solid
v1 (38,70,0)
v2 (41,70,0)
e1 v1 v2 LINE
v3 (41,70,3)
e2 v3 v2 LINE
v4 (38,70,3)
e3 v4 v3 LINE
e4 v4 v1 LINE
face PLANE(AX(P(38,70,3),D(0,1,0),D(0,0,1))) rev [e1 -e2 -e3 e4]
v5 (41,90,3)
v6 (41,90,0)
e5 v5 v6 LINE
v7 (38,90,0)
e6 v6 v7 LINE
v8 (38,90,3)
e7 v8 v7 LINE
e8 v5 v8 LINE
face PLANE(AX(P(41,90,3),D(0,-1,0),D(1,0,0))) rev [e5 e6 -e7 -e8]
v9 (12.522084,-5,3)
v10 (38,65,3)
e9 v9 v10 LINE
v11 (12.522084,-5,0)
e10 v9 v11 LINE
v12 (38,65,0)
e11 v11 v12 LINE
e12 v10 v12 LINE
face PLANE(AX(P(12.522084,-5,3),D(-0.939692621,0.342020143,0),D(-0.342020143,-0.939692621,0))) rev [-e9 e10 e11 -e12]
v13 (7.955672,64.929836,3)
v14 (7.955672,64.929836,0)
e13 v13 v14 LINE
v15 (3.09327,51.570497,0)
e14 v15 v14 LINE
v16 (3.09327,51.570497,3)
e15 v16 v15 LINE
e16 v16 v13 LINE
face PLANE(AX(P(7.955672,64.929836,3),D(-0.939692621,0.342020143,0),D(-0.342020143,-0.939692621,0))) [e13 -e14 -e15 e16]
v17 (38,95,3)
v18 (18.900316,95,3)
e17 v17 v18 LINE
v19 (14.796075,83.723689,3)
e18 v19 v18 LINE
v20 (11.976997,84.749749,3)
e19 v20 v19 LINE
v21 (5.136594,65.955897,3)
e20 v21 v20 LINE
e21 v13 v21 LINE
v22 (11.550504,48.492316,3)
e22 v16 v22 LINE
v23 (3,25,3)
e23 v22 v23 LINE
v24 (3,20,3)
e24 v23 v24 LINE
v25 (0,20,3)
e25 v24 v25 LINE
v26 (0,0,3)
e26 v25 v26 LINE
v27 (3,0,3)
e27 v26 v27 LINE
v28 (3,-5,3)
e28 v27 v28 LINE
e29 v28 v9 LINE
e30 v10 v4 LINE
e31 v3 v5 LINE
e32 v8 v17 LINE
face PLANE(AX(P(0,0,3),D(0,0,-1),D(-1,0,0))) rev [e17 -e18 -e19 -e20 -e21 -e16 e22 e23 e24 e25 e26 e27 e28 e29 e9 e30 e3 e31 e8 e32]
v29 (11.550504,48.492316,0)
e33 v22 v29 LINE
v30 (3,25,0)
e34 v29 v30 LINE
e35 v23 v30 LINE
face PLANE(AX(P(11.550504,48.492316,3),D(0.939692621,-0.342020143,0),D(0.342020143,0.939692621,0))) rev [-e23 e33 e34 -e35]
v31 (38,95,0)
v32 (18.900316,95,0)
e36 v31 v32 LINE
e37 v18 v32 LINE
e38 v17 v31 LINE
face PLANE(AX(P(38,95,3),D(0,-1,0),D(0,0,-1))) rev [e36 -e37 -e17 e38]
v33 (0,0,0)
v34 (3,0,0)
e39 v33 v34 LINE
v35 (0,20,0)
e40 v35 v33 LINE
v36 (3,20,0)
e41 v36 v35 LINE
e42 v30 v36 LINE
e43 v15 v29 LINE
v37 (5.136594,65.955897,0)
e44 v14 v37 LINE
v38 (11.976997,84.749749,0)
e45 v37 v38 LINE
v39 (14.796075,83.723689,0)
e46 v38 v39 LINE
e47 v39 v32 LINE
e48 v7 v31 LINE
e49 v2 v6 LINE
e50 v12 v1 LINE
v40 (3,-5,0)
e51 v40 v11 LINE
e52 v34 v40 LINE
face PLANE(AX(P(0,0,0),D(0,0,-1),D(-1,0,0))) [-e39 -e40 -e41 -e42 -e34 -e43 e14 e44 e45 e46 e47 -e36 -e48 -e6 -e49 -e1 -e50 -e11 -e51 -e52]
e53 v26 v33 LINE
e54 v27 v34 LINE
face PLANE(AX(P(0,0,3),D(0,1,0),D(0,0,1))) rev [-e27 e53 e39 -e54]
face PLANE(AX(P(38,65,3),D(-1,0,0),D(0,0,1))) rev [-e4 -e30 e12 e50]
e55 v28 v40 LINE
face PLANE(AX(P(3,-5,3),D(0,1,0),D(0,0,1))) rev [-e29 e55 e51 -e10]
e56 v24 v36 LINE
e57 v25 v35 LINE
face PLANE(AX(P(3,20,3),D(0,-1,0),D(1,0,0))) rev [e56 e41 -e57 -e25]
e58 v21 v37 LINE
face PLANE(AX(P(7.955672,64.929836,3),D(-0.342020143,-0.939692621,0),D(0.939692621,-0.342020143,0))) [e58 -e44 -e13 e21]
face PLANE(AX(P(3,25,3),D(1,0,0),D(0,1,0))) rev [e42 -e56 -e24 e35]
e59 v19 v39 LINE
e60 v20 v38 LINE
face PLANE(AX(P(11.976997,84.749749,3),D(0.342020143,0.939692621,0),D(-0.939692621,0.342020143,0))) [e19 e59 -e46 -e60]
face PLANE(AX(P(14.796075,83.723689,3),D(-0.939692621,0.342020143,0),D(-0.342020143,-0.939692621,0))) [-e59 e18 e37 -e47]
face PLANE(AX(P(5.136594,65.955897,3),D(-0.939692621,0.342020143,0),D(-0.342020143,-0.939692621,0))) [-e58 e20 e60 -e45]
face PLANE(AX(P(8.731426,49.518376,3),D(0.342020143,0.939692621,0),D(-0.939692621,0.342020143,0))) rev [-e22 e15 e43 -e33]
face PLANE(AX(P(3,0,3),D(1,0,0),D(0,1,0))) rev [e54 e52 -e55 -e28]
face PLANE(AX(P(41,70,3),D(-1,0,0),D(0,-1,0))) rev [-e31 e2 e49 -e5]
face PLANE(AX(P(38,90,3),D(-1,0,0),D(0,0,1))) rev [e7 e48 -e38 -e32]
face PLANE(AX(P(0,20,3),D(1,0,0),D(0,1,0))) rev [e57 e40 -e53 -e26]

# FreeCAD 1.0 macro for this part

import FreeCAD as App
import Part
import Sketcher
Q = App.Units.Quantity

doc = App.newDocument("Part")
body = doc.addObject("PartDesign::Body", "Body")

sketch1 = body.newObject("Sketcher::SketchObject", "Sketch")
sketch1.AttachmentSupport = (doc.getObject("XY_Plane"), [""])
sketch1.MapMode = "FlatFace"
sketch1.addGeometry([
    Part.LineSegment(App.Vector(3, -5, 0), App.Vector(12.5, -5, 0)),
    Part.LineSegment(App.Vector(12.5, -5, 0), App.Vector(38, 65, 0)),
    Part.LineSegment(App.Vector(38, 65, 0), App.Vector(38, 70, 0)),
    Part.LineSegment(App.Vector(38, 70, 0), App.Vector(41, 70, 0)),
    Part.LineSegment(App.Vector(41, 70, 0), App.Vector(41, 90, 0)),
    Part.LineSegment(App.Vector(41, 90, 0), App.Vector(38, 90, 0)),
    Part.LineSegment(App.Vector(38, 90, 0), App.Vector(38, 95, 0)),
    Part.LineSegment(App.Vector(38, 95, 0), App.Vector(28.5, 95, 0)),
    Part.LineSegment(App.Vector(28.5, 95, 0), App.Vector(18.4, 67.3, 0)),
    Part.LineSegment(App.Vector(18.4, 67.3, 0), App.Vector(15.6, 68.3, 0)),
    Part.LineSegment(App.Vector(15.6, 68.3, 0), App.Vector(8.7, 49.5, 0)),
    Part.LineSegment(App.Vector(8.7, 49.5, 0), App.Vector(11.6, 48.5, 0)),
    Part.LineSegment(App.Vector(11.6, 48.5, 0), App.Vector(3, 25, 0)),
    Part.LineSegment(App.Vector(3, 25, 0), App.Vector(3, 20, 0)),
    Part.LineSegment(App.Vector(3, 20, 0), App.Vector(0, 20, 0)),
    Part.LineSegment(App.Vector(0, 20, 0), App.Vector(0, 0, 0)),
    Part.LineSegment(App.Vector(0, 0, 0), App.Vector(3, 0, 0)),
    Part.LineSegment(App.Vector(3, 0, 0), App.Vector(3, -5, 0)),
], False)
sketch1.addConstraint([
    Sketcher.Constraint("Coincident", 0, 2, 1, 1),
    Sketcher.Constraint("Coincident", 1, 2, 2, 1),
    Sketcher.Constraint("Coincident", 2, 2, 3, 1),
    Sketcher.Constraint("Coincident", 3, 2, 4, 1),
    Sketcher.Constraint("Coincident", 4, 2, 5, 1),
    Sketcher.Constraint("Coincident", 5, 2, 6, 1),
    Sketcher.Constraint("Coincident", 6, 2, 7, 1),
    Sketcher.Constraint("Coincident", 7, 2, 8, 1),
    Sketcher.Constraint("Coincident", 8, 2, 9, 1),
    Sketcher.Constraint("Coincident", 9, 2, 10, 1),
    Sketcher.Constraint("Coincident", 10, 2, 11, 1),
    Sketcher.Constraint("Coincident", 11, 2, 12, 1),
    Sketcher.Constraint("Coincident", 12, 2, 13, 1),
    Sketcher.Constraint("Coincident", 13, 2, 14, 1),
    Sketcher.Constraint("Coincident", 14, 2, 15, 1),
    Sketcher.Constraint("Coincident", 15, 2, 16, 1),
    Sketcher.Constraint("Coincident", 16, 2, 17, 1),
    Sketcher.Constraint("Coincident", 17, 2, 0, 1),
    Sketcher.Constraint("Horizontal", 0),
    Sketcher.Constraint("Vertical", 2),
    Sketcher.Constraint("Horizontal", 3),
    Sketcher.Constraint("Vertical", 4),
    Sketcher.Constraint("Horizontal", 5),
    Sketcher.Constraint("Vertical", 6),
    Sketcher.Constraint("Horizontal", 7),
    Sketcher.Constraint("Vertical", 13),
    Sketcher.Constraint("Horizontal", 14),
    Sketcher.Constraint("Vertical", 15),
    Sketcher.Constraint("Horizontal", 16),
    Sketcher.Constraint("Vertical", 17),
    Sketcher.Constraint("Coincident", 15, 2, -1, 1),
    Sketcher.Constraint("Parallel", 1, 8),
    Sketcher.Constraint("Perpendicular", 8, 9),
    Sketcher.Constraint("Perpendicular", 9, 10),
    Sketcher.Constraint("Perpendicular", 10, 11),
    Sketcher.Constraint("Perpendicular", 11, 12),
    Sketcher.Constraint("Vertical", 2, 2, 5, 2),
    Sketcher.Constraint("Vertical", 13, 2, 16, 2),
    Sketcher.Constraint("Equal", 0, 7),
    Sketcher.Constraint("Equal", 5, 14),
    Sketcher.Constraint("Equal", 2, 6),
    Sketcher.Constraint("Equal", 6, 13),
    Sketcher.Constraint("Equal", 4, 15),
    Sketcher.Constraint("Equal", 13, 17),
    Sketcher.Constraint("DistanceX", 3, 1, 3, 2, Q("3 mm")),
    Sketcher.Constraint("DistanceY", 2, 1, 2, 2, Q("5 mm")),
    Sketcher.Constraint("DistanceY", 4, 1, 4, 2, Q("20 mm")),
    Sketcher.Constraint("Angle", 1, Q("70 deg")),
    Sketcher.Constraint("Distance", 9, Q("3 mm")),
    Sketcher.Constraint("Distance", 10, Q("20 mm")),
    Sketcher.Constraint("Distance", 12, Q("25 mm")),
    Sketcher.Constraint("DistanceX", -1, 1, 1, 2, Q("38 mm")),
    Sketcher.Constraint("DistanceY", -1, 1, 1, 2, Q("65 mm")),
])
pad1 = body.newObject("PartDesign::Pad", "Pad")
pad1.Profile = sketch1
pad1.Length = 3

sketch2 = body.newObject("Sketcher::SketchObject", "Sketch001")
sketch2.AttachmentSupport = (doc.getObject("XY_Plane"), [""])
sketch2.MapMode = "FlatFace"
sketch2.addGeometry([
    Part.LineSegment(App.Vector(3.1, 51.6, 0), App.Vector(8, 64.9, 0)),
    Part.LineSegment(App.Vector(8, 64.9, 0), App.Vector(5.1, 66, 0)),
    Part.LineSegment(App.Vector(5.1, 66, 0), App.Vector(12, 84.7, 0)),
    Part.LineSegment(App.Vector(12, 84.7, 0), App.Vector(14.8, 83.7, 0)),
    Part.LineSegment(App.Vector(14.8, 83.7, 0), App.Vector(18.9, 95, 0)),
    Part.LineSegment(App.Vector(18.9, 95, 0), App.Vector(28.5, 95, 0)),
    Part.LineSegment(App.Vector(28.5, 95, 0), App.Vector(18.4, 67.3, 0)),
    Part.LineSegment(App.Vector(18.4, 67.3, 0), App.Vector(15.6, 68.3, 0)),
    Part.LineSegment(App.Vector(15.6, 68.3, 0), App.Vector(8.7, 49.5, 0)),
    Part.LineSegment(App.Vector(8.7, 49.5, 0), App.Vector(3.1, 51.6, 0)),
], False)
sketch2.addConstraint([
    Sketcher.Constraint("Coincident", 0, 2, 1, 1),
    Sketcher.Constraint("Coincident", 1, 2, 2, 1),
    Sketcher.Constraint("Coincident", 2, 2, 3, 1),
    Sketcher.Constraint("Coincident", 3, 2, 4, 1),
    Sketcher.Constraint("Coincident", 4, 2, 5, 1),
    Sketcher.Constraint("Coincident", 5, 2, 6, 1),
    Sketcher.Constraint("Coincident", 6, 2, 7, 1),
    Sketcher.Constraint("Coincident", 7, 2, 8, 1),
    Sketcher.Constraint("Coincident", 8, 2, 9, 1),
    Sketcher.Constraint("Coincident", 9, 2, 0, 1),
    Sketcher.Constraint("Horizontal", 5),
    Sketcher.Constraint("Perpendicular", 0, 1),
    Sketcher.Constraint("Perpendicular", 1, 2),
    Sketcher.Constraint("Perpendicular", 2, 3),
    Sketcher.Constraint("Perpendicular", 3, 4),
    Sketcher.Constraint("Parallel", 4, 6),
    Sketcher.Constraint("Perpendicular", 6, 7),
    Sketcher.Constraint("Perpendicular", 7, 8),
    Sketcher.Constraint("Perpendicular", 8, 9),
    Sketcher.Constraint("Equal", 1, 3),
    Sketcher.Constraint("Equal", 3, 7),
    Sketcher.Constraint("Equal", 2, 8),
    Sketcher.Constraint("Angle", 0, Q("70 deg")),
    Sketcher.Constraint("Distance", 1, Q("3 mm")),
    Sketcher.Constraint("Distance", 2, Q("20 mm")),
    Sketcher.Constraint("Distance", 4, Q("12 mm")),
    Sketcher.Constraint("Distance", 9, Q("6 mm")),
    Sketcher.Constraint("DistanceY", -1, 1, 4, 2, Q("95 mm")),
    Sketcher.Constraint("DistanceX", 9, 2, 0, 2, Q("4.862402 mm")),
    Sketcher.Constraint("DistanceX", -1, 1, 0, 2, Q("7.955672 mm")),
])
pad2 = body.newObject("PartDesign::Pad", "Pad001")
pad2.Profile = sketch2
pad2.Length = 3

doc.recompute()
